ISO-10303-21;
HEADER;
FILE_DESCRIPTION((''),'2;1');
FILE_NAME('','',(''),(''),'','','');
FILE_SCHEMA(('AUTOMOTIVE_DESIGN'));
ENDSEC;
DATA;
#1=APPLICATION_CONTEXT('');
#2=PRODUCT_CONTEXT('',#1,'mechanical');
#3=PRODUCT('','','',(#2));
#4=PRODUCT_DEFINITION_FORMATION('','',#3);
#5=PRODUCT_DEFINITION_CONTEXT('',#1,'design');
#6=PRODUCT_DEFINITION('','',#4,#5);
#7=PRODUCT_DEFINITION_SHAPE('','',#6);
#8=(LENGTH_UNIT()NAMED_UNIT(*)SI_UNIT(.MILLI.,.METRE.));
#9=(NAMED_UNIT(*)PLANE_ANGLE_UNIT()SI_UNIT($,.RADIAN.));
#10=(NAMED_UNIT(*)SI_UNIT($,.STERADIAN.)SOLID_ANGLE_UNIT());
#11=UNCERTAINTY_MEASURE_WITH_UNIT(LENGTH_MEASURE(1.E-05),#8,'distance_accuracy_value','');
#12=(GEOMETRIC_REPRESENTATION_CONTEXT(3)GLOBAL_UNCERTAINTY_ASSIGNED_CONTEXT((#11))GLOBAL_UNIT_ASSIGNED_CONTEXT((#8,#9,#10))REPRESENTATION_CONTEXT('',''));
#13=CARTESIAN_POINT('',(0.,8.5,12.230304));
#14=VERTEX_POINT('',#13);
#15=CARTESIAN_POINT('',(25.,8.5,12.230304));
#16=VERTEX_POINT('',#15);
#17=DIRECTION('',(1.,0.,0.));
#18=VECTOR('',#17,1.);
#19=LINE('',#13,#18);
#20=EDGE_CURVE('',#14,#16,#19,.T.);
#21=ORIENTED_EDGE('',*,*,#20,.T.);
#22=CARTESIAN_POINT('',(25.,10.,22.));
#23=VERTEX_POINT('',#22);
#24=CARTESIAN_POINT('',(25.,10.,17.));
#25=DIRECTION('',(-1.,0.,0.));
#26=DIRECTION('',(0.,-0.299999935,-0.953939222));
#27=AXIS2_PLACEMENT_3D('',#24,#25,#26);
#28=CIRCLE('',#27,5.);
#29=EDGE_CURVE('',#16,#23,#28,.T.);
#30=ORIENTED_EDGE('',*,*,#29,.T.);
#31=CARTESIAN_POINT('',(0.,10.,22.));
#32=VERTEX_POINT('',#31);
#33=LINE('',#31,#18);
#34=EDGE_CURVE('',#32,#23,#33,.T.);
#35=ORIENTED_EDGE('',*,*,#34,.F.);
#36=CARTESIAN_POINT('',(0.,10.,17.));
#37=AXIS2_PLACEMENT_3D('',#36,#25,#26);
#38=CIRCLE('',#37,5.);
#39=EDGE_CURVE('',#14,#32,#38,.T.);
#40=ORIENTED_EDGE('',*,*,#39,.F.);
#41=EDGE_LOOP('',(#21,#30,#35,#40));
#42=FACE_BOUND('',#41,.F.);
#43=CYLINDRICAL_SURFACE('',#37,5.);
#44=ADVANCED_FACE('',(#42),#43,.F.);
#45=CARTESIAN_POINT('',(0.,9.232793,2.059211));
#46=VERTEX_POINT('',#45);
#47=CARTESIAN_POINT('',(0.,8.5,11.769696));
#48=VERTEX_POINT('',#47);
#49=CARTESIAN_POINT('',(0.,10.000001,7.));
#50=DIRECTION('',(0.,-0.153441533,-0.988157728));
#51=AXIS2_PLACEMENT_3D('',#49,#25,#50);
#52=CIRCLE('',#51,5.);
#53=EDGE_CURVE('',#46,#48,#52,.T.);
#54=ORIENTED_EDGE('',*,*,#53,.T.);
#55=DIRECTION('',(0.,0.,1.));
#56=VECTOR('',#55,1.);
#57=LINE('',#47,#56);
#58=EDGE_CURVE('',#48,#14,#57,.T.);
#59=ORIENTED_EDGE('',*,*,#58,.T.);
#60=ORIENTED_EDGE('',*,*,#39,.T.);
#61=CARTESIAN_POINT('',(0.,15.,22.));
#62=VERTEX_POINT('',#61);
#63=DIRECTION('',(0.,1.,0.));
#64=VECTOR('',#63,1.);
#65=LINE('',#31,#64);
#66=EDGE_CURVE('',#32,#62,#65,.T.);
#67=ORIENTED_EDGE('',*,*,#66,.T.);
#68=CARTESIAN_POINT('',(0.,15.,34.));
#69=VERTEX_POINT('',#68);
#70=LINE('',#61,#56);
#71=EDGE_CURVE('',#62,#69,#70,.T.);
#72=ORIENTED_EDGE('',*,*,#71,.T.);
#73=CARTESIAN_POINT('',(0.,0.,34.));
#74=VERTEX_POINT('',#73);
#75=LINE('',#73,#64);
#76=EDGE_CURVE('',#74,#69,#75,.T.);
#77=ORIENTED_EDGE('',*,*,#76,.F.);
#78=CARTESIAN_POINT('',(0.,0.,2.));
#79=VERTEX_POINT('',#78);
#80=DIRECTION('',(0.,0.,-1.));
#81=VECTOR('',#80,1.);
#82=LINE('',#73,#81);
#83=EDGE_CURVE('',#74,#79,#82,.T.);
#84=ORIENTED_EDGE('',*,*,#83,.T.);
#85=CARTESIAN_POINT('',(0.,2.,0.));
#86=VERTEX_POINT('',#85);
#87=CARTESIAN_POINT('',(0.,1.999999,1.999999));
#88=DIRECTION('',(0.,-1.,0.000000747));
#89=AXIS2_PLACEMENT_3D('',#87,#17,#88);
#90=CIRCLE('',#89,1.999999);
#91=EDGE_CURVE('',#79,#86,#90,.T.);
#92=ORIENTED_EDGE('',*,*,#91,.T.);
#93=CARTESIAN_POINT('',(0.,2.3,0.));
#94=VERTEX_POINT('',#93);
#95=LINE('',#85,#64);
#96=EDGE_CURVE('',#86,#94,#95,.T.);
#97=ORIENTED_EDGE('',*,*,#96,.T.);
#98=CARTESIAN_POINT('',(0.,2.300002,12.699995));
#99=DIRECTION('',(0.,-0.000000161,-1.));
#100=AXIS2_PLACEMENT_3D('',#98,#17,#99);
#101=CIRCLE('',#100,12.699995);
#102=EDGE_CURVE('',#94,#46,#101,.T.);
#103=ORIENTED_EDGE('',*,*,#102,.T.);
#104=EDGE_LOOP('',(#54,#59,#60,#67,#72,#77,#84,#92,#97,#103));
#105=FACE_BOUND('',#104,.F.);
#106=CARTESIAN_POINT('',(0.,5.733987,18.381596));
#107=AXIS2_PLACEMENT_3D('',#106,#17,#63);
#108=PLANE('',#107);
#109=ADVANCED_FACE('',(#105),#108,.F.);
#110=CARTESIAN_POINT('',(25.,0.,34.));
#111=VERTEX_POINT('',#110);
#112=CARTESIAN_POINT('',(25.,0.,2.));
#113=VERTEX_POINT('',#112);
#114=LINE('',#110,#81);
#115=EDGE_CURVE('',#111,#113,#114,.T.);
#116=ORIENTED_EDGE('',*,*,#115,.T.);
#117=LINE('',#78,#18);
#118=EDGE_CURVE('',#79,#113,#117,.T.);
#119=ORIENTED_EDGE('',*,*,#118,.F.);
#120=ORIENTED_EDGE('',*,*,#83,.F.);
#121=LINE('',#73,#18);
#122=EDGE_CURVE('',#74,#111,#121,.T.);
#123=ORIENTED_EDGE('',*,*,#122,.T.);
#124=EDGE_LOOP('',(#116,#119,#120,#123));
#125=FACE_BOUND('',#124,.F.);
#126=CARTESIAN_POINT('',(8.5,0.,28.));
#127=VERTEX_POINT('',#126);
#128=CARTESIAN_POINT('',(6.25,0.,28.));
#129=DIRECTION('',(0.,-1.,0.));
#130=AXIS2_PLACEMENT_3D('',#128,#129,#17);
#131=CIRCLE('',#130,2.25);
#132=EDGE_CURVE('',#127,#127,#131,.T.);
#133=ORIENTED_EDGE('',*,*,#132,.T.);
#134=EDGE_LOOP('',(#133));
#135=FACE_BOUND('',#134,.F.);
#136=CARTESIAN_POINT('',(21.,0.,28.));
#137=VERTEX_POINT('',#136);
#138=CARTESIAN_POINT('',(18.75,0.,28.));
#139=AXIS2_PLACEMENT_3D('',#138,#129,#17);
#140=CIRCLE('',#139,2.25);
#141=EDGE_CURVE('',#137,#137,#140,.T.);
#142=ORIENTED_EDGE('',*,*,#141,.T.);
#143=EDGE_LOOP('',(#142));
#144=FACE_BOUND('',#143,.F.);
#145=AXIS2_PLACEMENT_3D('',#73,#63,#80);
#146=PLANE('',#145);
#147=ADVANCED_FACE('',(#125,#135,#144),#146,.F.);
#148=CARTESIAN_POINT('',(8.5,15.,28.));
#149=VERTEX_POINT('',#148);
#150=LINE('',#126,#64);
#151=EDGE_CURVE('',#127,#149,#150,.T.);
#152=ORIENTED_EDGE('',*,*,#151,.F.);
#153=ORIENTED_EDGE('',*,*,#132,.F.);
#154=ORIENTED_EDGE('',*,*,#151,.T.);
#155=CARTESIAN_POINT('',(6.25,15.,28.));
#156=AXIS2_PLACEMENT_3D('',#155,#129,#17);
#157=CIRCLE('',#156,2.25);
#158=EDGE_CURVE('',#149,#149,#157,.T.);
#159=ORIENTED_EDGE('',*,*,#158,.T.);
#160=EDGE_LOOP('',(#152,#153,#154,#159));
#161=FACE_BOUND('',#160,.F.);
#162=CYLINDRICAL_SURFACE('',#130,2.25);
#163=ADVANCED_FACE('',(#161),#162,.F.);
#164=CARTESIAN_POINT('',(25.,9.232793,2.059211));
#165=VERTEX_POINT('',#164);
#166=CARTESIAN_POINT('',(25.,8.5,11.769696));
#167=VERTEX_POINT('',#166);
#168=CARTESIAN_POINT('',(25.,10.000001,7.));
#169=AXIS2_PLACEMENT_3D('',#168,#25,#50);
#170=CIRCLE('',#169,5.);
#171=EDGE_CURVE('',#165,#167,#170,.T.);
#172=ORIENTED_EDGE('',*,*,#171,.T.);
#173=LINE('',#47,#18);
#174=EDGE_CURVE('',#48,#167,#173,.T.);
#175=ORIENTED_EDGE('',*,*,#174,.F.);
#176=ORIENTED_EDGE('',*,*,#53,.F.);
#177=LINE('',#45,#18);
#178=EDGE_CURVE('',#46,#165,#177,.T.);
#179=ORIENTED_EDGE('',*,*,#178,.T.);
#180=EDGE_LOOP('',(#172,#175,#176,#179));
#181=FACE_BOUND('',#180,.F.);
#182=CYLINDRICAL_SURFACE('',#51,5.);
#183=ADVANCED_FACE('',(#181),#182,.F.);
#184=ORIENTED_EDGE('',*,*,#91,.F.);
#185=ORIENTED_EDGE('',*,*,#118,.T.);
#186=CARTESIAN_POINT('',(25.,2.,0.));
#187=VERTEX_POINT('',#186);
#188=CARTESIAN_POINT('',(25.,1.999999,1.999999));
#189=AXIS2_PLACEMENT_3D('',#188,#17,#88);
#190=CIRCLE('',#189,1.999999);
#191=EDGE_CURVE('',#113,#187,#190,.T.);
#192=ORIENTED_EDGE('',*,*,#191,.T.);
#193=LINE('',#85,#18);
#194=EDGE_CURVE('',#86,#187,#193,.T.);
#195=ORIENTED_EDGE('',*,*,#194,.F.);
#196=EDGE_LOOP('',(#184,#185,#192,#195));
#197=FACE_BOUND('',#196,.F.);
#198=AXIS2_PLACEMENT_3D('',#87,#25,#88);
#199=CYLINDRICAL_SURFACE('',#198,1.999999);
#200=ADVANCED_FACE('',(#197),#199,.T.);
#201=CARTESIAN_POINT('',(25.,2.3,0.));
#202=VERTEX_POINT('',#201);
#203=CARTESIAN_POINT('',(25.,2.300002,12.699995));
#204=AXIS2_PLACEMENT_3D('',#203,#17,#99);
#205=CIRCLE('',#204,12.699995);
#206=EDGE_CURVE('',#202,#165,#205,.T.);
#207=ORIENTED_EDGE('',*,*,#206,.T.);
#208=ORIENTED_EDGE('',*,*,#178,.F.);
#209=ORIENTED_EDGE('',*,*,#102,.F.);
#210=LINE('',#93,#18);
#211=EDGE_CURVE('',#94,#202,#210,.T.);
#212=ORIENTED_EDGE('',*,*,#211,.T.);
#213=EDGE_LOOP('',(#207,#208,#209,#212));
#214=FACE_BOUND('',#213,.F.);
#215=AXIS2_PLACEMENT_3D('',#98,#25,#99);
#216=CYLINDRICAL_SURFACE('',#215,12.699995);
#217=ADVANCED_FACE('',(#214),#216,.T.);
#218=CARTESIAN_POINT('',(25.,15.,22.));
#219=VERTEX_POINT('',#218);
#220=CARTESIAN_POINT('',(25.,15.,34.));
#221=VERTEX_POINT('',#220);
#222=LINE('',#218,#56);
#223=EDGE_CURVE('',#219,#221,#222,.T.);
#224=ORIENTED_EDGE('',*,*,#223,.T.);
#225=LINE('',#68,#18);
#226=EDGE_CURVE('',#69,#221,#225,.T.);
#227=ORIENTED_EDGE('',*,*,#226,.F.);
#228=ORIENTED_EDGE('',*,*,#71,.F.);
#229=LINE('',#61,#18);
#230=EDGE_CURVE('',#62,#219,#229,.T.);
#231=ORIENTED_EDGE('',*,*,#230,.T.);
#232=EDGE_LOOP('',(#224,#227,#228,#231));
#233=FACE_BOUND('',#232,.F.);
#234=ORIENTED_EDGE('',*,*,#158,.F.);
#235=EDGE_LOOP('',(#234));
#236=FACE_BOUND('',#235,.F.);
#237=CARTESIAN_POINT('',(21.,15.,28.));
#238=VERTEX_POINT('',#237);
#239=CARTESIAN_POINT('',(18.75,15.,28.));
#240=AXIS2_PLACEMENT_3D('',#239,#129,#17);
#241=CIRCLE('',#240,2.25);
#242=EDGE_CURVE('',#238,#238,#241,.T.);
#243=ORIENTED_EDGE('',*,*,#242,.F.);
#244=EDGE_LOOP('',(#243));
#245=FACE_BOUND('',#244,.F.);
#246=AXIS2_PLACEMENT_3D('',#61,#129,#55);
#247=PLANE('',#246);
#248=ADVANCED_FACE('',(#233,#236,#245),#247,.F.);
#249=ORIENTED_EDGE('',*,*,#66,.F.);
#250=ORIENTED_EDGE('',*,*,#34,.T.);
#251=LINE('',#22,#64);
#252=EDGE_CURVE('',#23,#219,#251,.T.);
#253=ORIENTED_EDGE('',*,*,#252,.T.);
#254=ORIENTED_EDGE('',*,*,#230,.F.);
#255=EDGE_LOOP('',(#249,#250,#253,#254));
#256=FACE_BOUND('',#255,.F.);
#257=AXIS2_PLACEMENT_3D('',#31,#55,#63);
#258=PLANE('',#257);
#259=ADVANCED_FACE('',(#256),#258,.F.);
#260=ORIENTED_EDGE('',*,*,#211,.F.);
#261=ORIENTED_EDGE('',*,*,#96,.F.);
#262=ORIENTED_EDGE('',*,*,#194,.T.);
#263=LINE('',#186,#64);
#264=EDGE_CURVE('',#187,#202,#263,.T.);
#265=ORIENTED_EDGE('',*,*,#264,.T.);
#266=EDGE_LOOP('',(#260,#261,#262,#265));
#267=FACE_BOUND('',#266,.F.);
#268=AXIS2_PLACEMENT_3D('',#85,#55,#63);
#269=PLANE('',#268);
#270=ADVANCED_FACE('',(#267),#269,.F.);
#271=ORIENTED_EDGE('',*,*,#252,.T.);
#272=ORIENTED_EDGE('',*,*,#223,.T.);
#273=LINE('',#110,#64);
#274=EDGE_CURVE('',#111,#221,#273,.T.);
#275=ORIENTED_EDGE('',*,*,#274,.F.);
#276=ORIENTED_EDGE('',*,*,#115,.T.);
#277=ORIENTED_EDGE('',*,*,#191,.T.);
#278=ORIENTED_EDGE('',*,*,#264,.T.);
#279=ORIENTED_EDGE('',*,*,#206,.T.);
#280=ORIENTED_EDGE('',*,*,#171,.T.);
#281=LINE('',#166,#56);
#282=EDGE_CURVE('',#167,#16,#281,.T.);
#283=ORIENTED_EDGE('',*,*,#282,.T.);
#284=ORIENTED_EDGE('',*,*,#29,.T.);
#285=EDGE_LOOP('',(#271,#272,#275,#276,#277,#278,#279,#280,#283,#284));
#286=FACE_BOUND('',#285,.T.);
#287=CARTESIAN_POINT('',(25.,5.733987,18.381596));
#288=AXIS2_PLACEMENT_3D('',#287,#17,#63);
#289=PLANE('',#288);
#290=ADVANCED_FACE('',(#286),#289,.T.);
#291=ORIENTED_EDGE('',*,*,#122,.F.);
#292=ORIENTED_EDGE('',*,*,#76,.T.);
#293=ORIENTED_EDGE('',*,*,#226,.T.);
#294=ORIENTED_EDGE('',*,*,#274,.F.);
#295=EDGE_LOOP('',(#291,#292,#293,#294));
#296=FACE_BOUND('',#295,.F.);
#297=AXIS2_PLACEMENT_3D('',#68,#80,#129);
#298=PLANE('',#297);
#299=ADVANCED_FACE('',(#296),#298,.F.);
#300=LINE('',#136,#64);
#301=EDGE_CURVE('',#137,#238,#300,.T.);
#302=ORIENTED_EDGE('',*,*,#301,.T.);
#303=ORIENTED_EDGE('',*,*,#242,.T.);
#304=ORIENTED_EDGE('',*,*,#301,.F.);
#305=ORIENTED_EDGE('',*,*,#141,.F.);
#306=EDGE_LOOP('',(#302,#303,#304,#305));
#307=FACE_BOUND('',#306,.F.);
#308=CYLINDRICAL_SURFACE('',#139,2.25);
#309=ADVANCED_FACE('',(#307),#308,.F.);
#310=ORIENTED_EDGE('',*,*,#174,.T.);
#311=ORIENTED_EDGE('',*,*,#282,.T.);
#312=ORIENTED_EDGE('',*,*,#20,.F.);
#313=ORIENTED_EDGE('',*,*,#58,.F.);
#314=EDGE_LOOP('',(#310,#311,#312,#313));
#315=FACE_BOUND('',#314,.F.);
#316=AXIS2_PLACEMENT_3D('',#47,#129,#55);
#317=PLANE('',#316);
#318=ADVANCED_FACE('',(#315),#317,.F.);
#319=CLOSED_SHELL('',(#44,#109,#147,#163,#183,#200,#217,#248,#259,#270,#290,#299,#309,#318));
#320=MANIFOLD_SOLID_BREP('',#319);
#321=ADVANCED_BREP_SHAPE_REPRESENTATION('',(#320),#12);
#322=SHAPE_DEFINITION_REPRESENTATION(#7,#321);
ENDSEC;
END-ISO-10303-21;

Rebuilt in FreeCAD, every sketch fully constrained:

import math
import FreeCAD as App
import Part
import Sketcher

V = App.Vector

doc = App.newDocument("Part")
body = doc.addObject("PartDesign::Body", "Body")

# Sketch on YZ plane
sketch1 = doc.addObject("Sketcher::SketchObject", "Sketch")
body.addObject(sketch1)
sketch1.AttachmentSupport = (doc.YZ_Plane, [""])
sketch1.MapMode = "FlatFace"
sketch1.addGeometry(Part.ArcOfCircle(Part.Circle(V(2, 2, 0), V(0, 0, 1), 2), math.radians(180), math.radians(270)), False)
sketch1.addGeometry(Part.LineSegment(V(2, 0, 0), V(2.3, 0, 0)), False)
sketch1.addGeometry(Part.ArcOfCircle(Part.Circle(V(2.3, 12.7, 0), V(0, 0, 1), 12.7), math.radians(-90), math.radians(-57)), False)
sketch1.addGeometry(Part.ArcOfCircle(Part.Circle(V(10, 7, 0), V(0, 0, 1), 5), math.radians(107), math.radians(261)), False)
sketch1.addGeometry(Part.LineSegment(V(8.5, 11.77, 0), V(8.5, 12.23, 0)), False)
sketch1.addGeometry(Part.ArcOfCircle(Part.Circle(V(10, 17, 0), V(0, 0, 1), 5), math.radians(90), math.radians(253)), False)
sketch1.addGeometry(Part.LineSegment(V(10, 22, 0), V(15, 22, 0)), False)
sketch1.addGeometry(Part.LineSegment(V(15, 22, 0), V(15, 34, 0)), False)
sketch1.addGeometry(Part.LineSegment(V(15, 34, 0), V(0, 34, 0)), False)
sketch1.addGeometry(Part.LineSegment(V(0, 34, 0), V(0, 2, 0)), False)
sketch1.addConstraint(Sketcher.Constraint("Tangent", 0, 2, 1, 1))
sketch1.addConstraint(Sketcher.Constraint("Tangent", 1, 2, 2, 1))
sketch1.addConstraint(Sketcher.Constraint("Coincident", 2, 2, 3, 2))
sketch1.addConstraint(Sketcher.Constraint("Coincident", 3, 1, 4, 1))
sketch1.addConstraint(Sketcher.Constraint("Coincident", 4, 2, 5, 2))
sketch1.addConstraint(Sketcher.Constraint("Tangent", 5, 1, 6, 1))
sketch1.addConstraint(Sketcher.Constraint("Coincident", 6, 2, 7, 1))
sketch1.addConstraint(Sketcher.Constraint("Coincident", 7, 2, 8, 1))
sketch1.addConstraint(Sketcher.Constraint("Coincident", 8, 2, 9, 1))
sketch1.addConstraint(Sketcher.Constraint("Tangent", 9, 2, 0, 1))
sketch1.addConstraint(Sketcher.Constraint("Horizontal", 1))
sketch1.addConstraint(Sketcher.Constraint("Vertical", 4))
sketch1.addConstraint(Sketcher.Constraint("Horizontal", 6))
sketch1.addConstraint(Sketcher.Constraint("Vertical", 7))
sketch1.addConstraint(Sketcher.Constraint("Horizontal", 8))
sketch1.addConstraint(Sketcher.Constraint("Vertical", 9))
sketch1.addConstraint(Sketcher.Constraint("Equal", 3, 5))
sketch1.addConstraint(Sketcher.Constraint("PointOnObject", 0, 2, -1))
sketch1.addConstraint(Sketcher.Constraint("PointOnObject", 8, 2, -2))
sketch1.addConstraint(Sketcher.Constraint("Vertical", 3, 3, 5, 3))
sketch1.addConstraint(Sketcher.Constraint("Radius", 0, 1.999999))
sketch1.addConstraint(Sketcher.Constraint("Radius", 3, 5.0))
sketch1.addConstraint(Sketcher.Constraint("DistanceX", 6, 1, 6, 2, 5.0))
sketch1.addConstraint(Sketcher.Constraint("DistanceX", 8, 2, 8, 1, 15.0))
sketch1.addConstraint(Sketcher.Constraint("DistanceY", 7, 1, 7, 2, 12.0))
sketch1.addConstraint(Sketcher.Constraint("DistanceY", 9, 2, 9, 1, 32.0))
sketch1.addConstraint(Sketcher.Constraint("DistanceX", 1, 1, 1, 2, 0.3))
sketch1.addConstraint(Sketcher.Constraint("DistanceY", -1, 1, 3, 3, 7.0))
sketch1.addConstraint(Sketcher.Constraint("DistanceX", -1, 1, 3, 1, 8.5))
sketch1.addConstraint(Sketcher.Constraint("Radius", 2, 12.699995))
pad1 = doc.addObject("PartDesign::Pad", "Pad")
body.addObject(pad1)
pad1.Profile = sketch1
pad1.Length = 25

# Sketch on XZ plane
sketch2 = doc.addObject("Sketcher::SketchObject", "Sketch001")
body.addObject(sketch2)
sketch2.AttachmentSupport = (doc.XZ_Plane, [""])
sketch2.MapMode = "FlatFace"
sketch2.addGeometry(Part.Circle(V(6.2, 28, 0), V(0, 0, 1), 2.2), False)
sketch2.addGeometry(Part.Circle(V(18.8, 28, 0), V(0, 0, 1), 2.2), False)
sketch2.addConstraint(Sketcher.Constraint("Equal", 0, 1))
sketch2.addConstraint(Sketcher.Constraint("Horizontal", 0, 3, 1, 3))
sketch2.addConstraint(Sketcher.Constraint("Diameter", 0, 4.5))
sketch2.addConstraint(Sketcher.Constraint("DistanceY", -1, 1, 0, 3, 28.0))
sketch2.addConstraint(Sketcher.Constraint("DistanceX", 0, 3, 1, 3, 12.5))
sketch2.addConstraint(Sketcher.Constraint("DistanceX", -1, 1, 0, 3, 6.25))
pocket1 = doc.addObject("PartDesign::Pocket", "Pocket")
body.addObject(pocket1)
pocket1.Profile = sketch2
pocket1.Length = 28.7

# Sketch on XZ plane
sketch3 = doc.addObject("Sketcher::SketchObject", "Sketch002")
body.addObject(sketch3)
sketch3.AttachmentSupport = (doc.XZ_Plane, [""])
sketch3.MapMode = "FlatFace"
sketch3.addGeometry(Part.LineSegment(V(0, 34, 0), V(0, 2, 0)), False)
sketch3.addGeometry(Part.LineSegment(V(0, 2, 0), V(25, 2, 0)), False)
sketch3.addGeometry(Part.LineSegment(V(25, 2, 0), V(25, 34, 0)), False)
sketch3.addGeometry(Part.LineSegment(V(25, 34, 0), V(0, 34, 0)), False)
sketch3.addGeometry(Part.Circle(V(6.2, 28, 0), V(0, 0, 1), 4.2), False)
sketch3.addGeometry(Part.Circle(V(18.8, 28, 0), V(0, 0, 1), 4.2), False)
sketch3.addConstraint(Sketcher.Constraint("Coincident", 0, 2, 1, 1))
sketch3.addConstraint(Sketcher.Constraint("Coincident", 1, 2, 2, 1))
sketch3.addConstraint(Sketcher.Constraint("Coincident", 2, 2, 3, 1))
sketch3.addConstraint(Sketcher.Constraint("Coincident", 3, 2, 0, 1))
sketch3.addConstraint(Sketcher.Constraint("Vertical", 0))
sketch3.addConstraint(Sketcher.Constraint("Horizontal", 1))
sketch3.addConstraint(Sketcher.Constraint("Vertical", 2))
sketch3.addConstraint(Sketcher.Constraint("Horizontal", 3))
sketch3.addConstraint(Sketcher.Constraint("Equal", 4, 5))
sketch3.addConstraint(Sketcher.Constraint("PointOnObject", 0, 2, -2))
sketch3.addConstraint(Sketcher.Constraint("Horizontal", 4, 3, 5, 3))
sketch3.addConstraint(Sketcher.Constraint("Diameter", 4, 8.5))
sketch3.addConstraint(Sketcher.Constraint("DistanceX", 1, 1, 1, 2, 25.0))
sketch3.addConstraint(Sketcher.Constraint("DistanceY", 0, 2, 0, 1, 32.0))
sketch3.addConstraint(Sketcher.Constraint("DistanceY", -1, 1, 4, 3, 28.0))
sketch3.addConstraint(Sketcher.Constraint("DistanceY", -1, 1, 0, 2, 2.0))
sketch3.addConstraint(Sketcher.Constraint("DistanceX", 4, 3, 5, 3, 12.5))
sketch3.addConstraint(Sketcher.Constraint("DistanceX", -1, 1, 4, 3, 6.25))
pad2 = doc.addObject("PartDesign::Pad", "Pad001")
body.addObject(pad2)
pad2.Profile = sketch3
pad2.Length = 2
pad2.Reversed = True

doc.recompute()
